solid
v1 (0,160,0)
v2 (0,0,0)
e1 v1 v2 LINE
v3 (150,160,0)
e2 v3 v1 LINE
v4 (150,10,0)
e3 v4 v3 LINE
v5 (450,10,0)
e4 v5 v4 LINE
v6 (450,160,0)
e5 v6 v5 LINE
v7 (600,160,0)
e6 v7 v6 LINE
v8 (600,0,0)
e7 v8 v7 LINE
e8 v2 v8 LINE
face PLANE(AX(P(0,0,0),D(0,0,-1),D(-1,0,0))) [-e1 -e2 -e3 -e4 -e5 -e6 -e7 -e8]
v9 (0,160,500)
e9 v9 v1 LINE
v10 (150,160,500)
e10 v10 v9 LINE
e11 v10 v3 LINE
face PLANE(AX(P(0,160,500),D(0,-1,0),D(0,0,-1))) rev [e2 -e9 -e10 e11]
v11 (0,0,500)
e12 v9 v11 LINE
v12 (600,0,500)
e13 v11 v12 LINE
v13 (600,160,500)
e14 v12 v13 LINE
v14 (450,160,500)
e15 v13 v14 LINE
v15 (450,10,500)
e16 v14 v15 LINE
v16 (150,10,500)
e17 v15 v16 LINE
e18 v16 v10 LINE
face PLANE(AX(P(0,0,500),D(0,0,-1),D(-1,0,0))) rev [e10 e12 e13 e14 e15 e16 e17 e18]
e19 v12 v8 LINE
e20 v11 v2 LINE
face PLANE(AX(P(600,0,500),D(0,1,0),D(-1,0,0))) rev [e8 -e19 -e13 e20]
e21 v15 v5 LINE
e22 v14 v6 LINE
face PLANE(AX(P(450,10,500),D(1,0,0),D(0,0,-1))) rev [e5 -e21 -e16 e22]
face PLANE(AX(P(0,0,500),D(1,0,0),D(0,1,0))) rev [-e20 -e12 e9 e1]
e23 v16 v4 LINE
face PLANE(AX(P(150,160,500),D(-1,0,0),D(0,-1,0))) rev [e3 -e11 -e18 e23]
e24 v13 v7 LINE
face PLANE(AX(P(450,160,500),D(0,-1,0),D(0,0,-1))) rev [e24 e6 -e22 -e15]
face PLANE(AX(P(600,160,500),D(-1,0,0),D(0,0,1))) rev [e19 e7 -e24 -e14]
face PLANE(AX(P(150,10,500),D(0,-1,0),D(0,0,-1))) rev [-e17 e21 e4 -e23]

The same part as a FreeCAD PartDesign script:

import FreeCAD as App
import Part
import Sketcher
Q = App.Units.Quantity


def add_polygon(sketch, points):
    """Adds a closed chain of lines whose ends are joined by coincident constraints."""
    first, n = sketch.GeometryCount, len(points)
    for a, b in zip(points, points[1:] + points[:1]):
        sketch.addGeometry(Part.LineSegment(App.Vector(*a, 0), App.Vector(*b, 0)), False)
    for i in range(n):
        sketch.addConstraint(Sketcher.Constraint("Coincident", first + i, 2, first + (i + 1) % n, 1))

doc = App.newDocument("Part")
params = doc.addObject("Spreadsheet::Sheet", "Params")
for row, (alias, value) in enumerate([
    ("sketch1_width", "600 mm"),
    ("sketch1_width2", "150 mm"),
    ("sketch1_height", "160 mm"),
    ("pad1_length", "500 mm"),
], start=1):
    params.set(f"A{row}", alias)
    params.set(f"B{row}", "=" + value)
    params.setAlias(f"B{row}", alias)

body = doc.addObject("PartDesign::Body", "Body")

# Sketch on XY plane
sketch1 = doc.addObject("Sketcher::SketchObject", "Sketch")
body.addObject(sketch1)
sketch1.AttachmentSupport = (doc.XY_Plane, [""])
sketch1.MapMode = "FlatFace"
add_polygon(sketch1, [(0, 160), (0, 0), (600, 0), (600, 160), (450, 160), (450, 10), (150, 10), (150, 160)])  # lines 0-7
sketch1.addConstraint([
    Sketcher.Constraint("Vertical", 0),
    Sketcher.Constraint("Horizontal", 1),
    Sketcher.Constraint("Vertical", 2),
    Sketcher.Constraint("Horizontal", 3),
    Sketcher.Constraint("Vertical", 4),
    Sketcher.Constraint("Horizontal", 5),
    Sketcher.Constraint("Vertical", 6),
    Sketcher.Constraint("Horizontal", 7),
    Sketcher.Constraint("Coincident", 0, 2, -1, 1),
    Sketcher.Constraint("Horizontal", 3, 2, 6, 2),
    Sketcher.Constraint("Equal", 3, 7),
    Sketcher.Constraint("Equal", 7, 4),
    Sketcher.Constraint("DistanceX", 1, 1, 1, 2, Q("600 mm")),
    Sketcher.Constraint("DistanceX", 3, 2, 3, 1, Q("150 mm")),
    Sketcher.Constraint("DistanceY", 0, 2, 0, 1, Q("160 mm")),
])
sketch1.setExpression("Constraints[20]", "Params.sketch1_width")
sketch1.setExpression("Constraints[21]", "Params.sketch1_width2")
sketch1.setExpression("Constraints[22]", "Params.sketch1_height")
pad1 = doc.addObject("PartDesign::Pad", "Pad")
body.addObject(pad1)
pad1.Profile = sketch1
pad1.setExpression("Length", "Params.pad1_length")

doc.recompute()
